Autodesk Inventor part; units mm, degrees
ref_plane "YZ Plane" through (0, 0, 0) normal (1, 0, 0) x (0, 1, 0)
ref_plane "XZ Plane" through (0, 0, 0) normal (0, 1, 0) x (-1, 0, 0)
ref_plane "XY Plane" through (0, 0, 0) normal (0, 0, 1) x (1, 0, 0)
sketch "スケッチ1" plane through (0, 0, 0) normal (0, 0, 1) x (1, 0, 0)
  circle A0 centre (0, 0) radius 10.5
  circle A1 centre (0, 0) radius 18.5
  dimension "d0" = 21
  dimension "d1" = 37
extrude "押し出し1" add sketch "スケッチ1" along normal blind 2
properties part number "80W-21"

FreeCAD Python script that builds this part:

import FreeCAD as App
import Part
import Sketcher
from FreeCAD import Vector

doc = App.newDocument("Part")
body = doc.addObject("PartDesign::Body", "Body")

sketch1 = body.newObject("Sketcher::SketchObject", "Sketch")
sketch1.AttachmentSupport = (doc.getObject("XY_Plane"), [""])
sketch1.MapMode = "FlatFace"
sketch1.addGeometry(Part.Circle(Vector(0, 0, 0), Vector(0, 0, 1), 18.5), False)
sketch1.addGeometry(Part.Circle(Vector(0, 0, 0), Vector(0, 0, 1), 10.5), False)
sketch1.addConstraint(Sketcher.Constraint("Coincident", 0, 3, -1, 1))
sketch1.addConstraint(Sketcher.Constraint("Coincident", 1, 3, -1, 1))
sketch1.addConstraint(Sketcher.Constraint("Diameter", 0, 37.0))
sketch1.addConstraint(Sketcher.Constraint("Diameter", 1, 21.0))
pad1 = body.newObject("PartDesign::Pad", "Pad")
pad1.Profile = sketch1
pad1.Length = 2

doc.recompute()
